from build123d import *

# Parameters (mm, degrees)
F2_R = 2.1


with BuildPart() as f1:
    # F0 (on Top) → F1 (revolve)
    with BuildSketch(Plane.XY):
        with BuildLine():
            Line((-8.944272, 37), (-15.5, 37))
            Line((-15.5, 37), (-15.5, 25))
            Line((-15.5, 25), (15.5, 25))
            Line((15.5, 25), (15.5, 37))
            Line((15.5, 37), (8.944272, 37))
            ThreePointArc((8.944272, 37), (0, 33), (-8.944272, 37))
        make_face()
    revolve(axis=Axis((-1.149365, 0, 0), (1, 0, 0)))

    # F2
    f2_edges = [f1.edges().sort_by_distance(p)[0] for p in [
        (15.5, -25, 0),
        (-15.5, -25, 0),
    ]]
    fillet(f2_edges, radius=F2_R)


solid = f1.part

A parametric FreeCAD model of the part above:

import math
import FreeCAD as App
import Part
import Sketcher
from FreeCAD import Vector
Q = App.Units.Quantity


def edges_at(feature, points):
    """Names of the edges that pass closest to the given points."""
    edges = feature.Shape.Edges
    near = lambda p: min(range(len(edges)), key=lambda i: edges[i].distToShape(Part.Vertex(*p))[0])
    return sorted({f"Edge{near(p) + 1}" for p in points})

doc = App.newDocument("Part")
params = doc.addObject("Spreadsheet::Sheet", "Params")
for row, (alias, value) in enumerate([
    ("sketch1_radius", "12 mm"),
    ("sketch1_width", "31 mm"),
    ("sketch1_height", "12 mm"),
    ("revolution_angle", "360 deg"),
    ("fillet_radius", "2.1 mm"),
], start=1):
    params.set(f"A{row}", alias)
    params.set(f"B{row}", "=" + value)
    params.setAlias(f"B{row}", alias)

body = doc.addObject("PartDesign::Body", "Body")

sketch1 = body.newObject("Sketcher::SketchObject", "Sketch")
sketch1.AttachmentSupport = (doc.getObject("XY_Plane"), [""])
sketch1.MapMode = "FlatFace"
sketch1.addGeometry([
    Part.LineSegment(Vector(-9, 37, 0), Vector(-16, 37, 0)),
    Part.LineSegment(Vector(-16, 37, 0), Vector(-16, 25, 0)),
    Part.LineSegment(Vector(-16, 25, 0), Vector(16, 25, 0)),
    Part.LineSegment(Vector(16, 25, 0), Vector(16, 37, 0)),
    Part.LineSegment(Vector(16, 37, 0), Vector(9, 37, 0)),
    Part.ArcOfCircle(Part.Circle(Vector(0, 45, 0), Vector(0, 0, 1), 12), math.radians(-138), math.radians(-42)),
], False)
sketch1.addConstraint([
    Sketcher.Constraint("Coincident", 0, 2, 1, 1),
    Sketcher.Constraint("Coincident", 1, 2, 2, 1),
    Sketcher.Constraint("Coincident", 2, 2, 3, 1),
    Sketcher.Constraint("Coincident", 3, 2, 4, 1),
    Sketcher.Constraint("Coincident", 4, 2, 5, 2),
    Sketcher.Constraint("Coincident", 5, 1, 0, 1),
    Sketcher.Constraint("Horizontal", 0),
    Sketcher.Constraint("Vertical", 1),
    Sketcher.Constraint("Horizontal", 2),
    Sketcher.Constraint("Vertical", 3),
    Sketcher.Constraint("Horizontal", 4),
    Sketcher.Constraint("Symmetric", 0, 2, 3, 2, -2),
    Sketcher.Constraint("PointOnObject", 5, 3, -2),
    Sketcher.Constraint("Radius", 5, Q("12 mm")),
    Sketcher.Constraint("DistanceX", 2, 1, 2, 2, Q("31 mm")),
    Sketcher.Constraint("DistanceY", 1, 2, 1, 1, Q("12 mm")),
    Sketcher.Constraint("DistanceY", -1, 1, 5, 3, Q("45 mm")),
    Sketcher.Constraint("DistanceY", -1, 1, 0, 2, Q("37 mm")),
])
sketch1.setExpression("Constraints[13]", "Params.sketch1_radius")
sketch1.setExpression("Constraints[14]", "Params.sketch1_width")
sketch1.setExpression("Constraints[15]", "Params.sketch1_height")
revolution = body.newObject("PartDesign::Revolution", "Revolution")
revolution.Profile = sketch1
revolution.ReferenceAxis = (sketch1, ["H_Axis"])
revolution.setExpression("Angle", "Params.revolution_angle")
doc.recompute()

fillet = body.newObject("PartDesign::Fillet", "Fillet")
fillet.Base = (revolution, edges_at(revolution, [(15.5, -25, 0), (-15.5, -25, 0)]))
fillet.setExpression("Radius", "Params.fillet_radius")

doc.recompute()
